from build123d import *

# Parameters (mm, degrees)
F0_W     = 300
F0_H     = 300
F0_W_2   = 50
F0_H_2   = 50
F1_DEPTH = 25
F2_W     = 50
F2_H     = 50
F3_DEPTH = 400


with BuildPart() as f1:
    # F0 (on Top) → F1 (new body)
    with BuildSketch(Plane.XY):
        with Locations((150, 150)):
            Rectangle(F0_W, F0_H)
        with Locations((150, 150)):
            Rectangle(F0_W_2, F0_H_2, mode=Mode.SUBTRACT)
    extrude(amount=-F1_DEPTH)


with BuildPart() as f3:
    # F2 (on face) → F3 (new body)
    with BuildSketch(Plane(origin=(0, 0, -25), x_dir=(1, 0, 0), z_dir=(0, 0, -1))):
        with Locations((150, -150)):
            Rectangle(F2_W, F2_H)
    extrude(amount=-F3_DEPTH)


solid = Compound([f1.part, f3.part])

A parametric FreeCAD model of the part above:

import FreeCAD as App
import Part
import Sketcher

V = App.Vector
Q = App.Units.Quantity

doc = App.newDocument("Part")
body = doc.addObject("PartDesign::Body", "Body")

# Sketch on XY plane
sketch1 = doc.addObject("Sketcher::SketchObject", "Sketch")
body.addObject(sketch1)
sketch1.AttachmentSupport = (doc.XY_Plane, [""])
sketch1.MapMode = "FlatFace"
sketch1.addGeometry([
    Part.LineSegment(V(0, 300, 0), V(0, 0, 0)),  # 0
    Part.LineSegment(V(0, 0, 0), V(300, 0, 0)),  # 1
    Part.LineSegment(V(300, 0, 0), V(300, 300, 0)),  # 2
    Part.LineSegment(V(300, 300, 0), V(0, 300, 0)),  # 3
    Part.LineSegment(V(175, 125, 0), V(125, 125, 0)),  # 4
    Part.LineSegment(V(125, 125, 0), V(125, 175, 0)),  # 5
    Part.LineSegment(V(125, 175, 0), V(175, 175, 0)),  # 6
    Part.LineSegment(V(175, 175, 0), V(175, 125, 0)),  # 7
], False)
sketch1.addConstraint([
    Sketcher.Constraint("Coincident", 0, 2, 1, 1),
    Sketcher.Constraint("Coincident", 1, 2, 2, 1),
    Sketcher.Constraint("Coincident", 2, 2, 3, 1),
    Sketcher.Constraint("Coincident", 3, 2, 0, 1),
    Sketcher.Constraint("Coincident", 4, 2, 5, 1),
    Sketcher.Constraint("Coincident", 5, 2, 6, 1),
    Sketcher.Constraint("Coincident", 6, 2, 7, 1),
    Sketcher.Constraint("Coincident", 7, 2, 4, 1),
    Sketcher.Constraint("Vertical", 0),
    Sketcher.Constraint("Horizontal", 1),
    Sketcher.Constraint("Vertical", 2),
    Sketcher.Constraint("Horizontal", 3),
    Sketcher.Constraint("Horizontal", 4),
    Sketcher.Constraint("Vertical", 5),
    Sketcher.Constraint("Horizontal", 6),
    Sketcher.Constraint("Vertical", 7),
    Sketcher.Constraint("Coincident", 0, 2, -1, 1),
    Sketcher.Constraint("Equal", 3, 0),
    Sketcher.Constraint("Equal", 6, 5),
    Sketcher.Constraint("DistanceX", 1, 1, 1, 2, Q("300 mm")),
    Sketcher.Constraint("DistanceX", 4, 2, 4, 1, Q("50 mm")),
    Sketcher.Constraint("DistanceX", -1, 1, 4, 2, Q("125 mm")),
    Sketcher.Constraint("DistanceY", -1, 1, 4, 2, Q("125 mm")),
])
pad1 = doc.addObject("PartDesign::Pad", "Pad")
body.addObject(pad1)
pad1.Profile = sketch1
pad1.Length = 25
pad1.Reversed = True
body2 = doc.addObject("PartDesign::Body", "Body001")

# Sketch on XY plane
sketch2 = doc.addObject("Sketcher::SketchObject", "Sketch001")
body2.addObject(sketch2)
sketch2.AttachmentSupport = (doc.getObject("XY_Plane001"), [""])
sketch2.MapMode = "FlatFace"
sketch2.AttachmentOffset = App.Placement(V(0, 0, -25), App.Rotation())
sketch2.addGeometry([
    Part.LineSegment(V(125, 125, 0), V(125, 175, 0)),
    Part.LineSegment(V(125, 175, 0), V(175, 175, 0)),
    Part.LineSegment(V(175, 175, 0), V(175, 125, 0)),
    Part.LineSegment(V(175, 125, 0), V(125, 125, 0)),
], False)
sketch2.addConstraint([
    Sketcher.Constraint("Coincident", 0, 2, 1, 1),
    Sketcher.Constraint("Coincident", 1, 2, 2, 1),
    Sketcher.Constraint("Coincident", 2, 2, 3, 1),
    Sketcher.Constraint("Coincident", 3, 2, 0, 1),
    Sketcher.Constraint("Vertical", 0),
    Sketcher.Constraint("Horizontal", 1),
    Sketcher.Constraint("Vertical", 2),
    Sketcher.Constraint("Horizontal", 3),
    Sketcher.Constraint("Equal", 3, 0),
    Sketcher.Constraint("DistanceX", 1, 1, 1, 2, Q("50 mm")),
    Sketcher.Constraint("DistanceX", -1, 1, 0, 2, Q("125 mm")),
    Sketcher.Constraint("DistanceY", -1, 1, 0, 2, Q("175 mm")),
])
pad2 = doc.addObject("PartDesign::Pad", "Pad001")
body2.addObject(pad2)
pad2.Profile = sketch2
pad2.Length = 400

doc.recompute()
